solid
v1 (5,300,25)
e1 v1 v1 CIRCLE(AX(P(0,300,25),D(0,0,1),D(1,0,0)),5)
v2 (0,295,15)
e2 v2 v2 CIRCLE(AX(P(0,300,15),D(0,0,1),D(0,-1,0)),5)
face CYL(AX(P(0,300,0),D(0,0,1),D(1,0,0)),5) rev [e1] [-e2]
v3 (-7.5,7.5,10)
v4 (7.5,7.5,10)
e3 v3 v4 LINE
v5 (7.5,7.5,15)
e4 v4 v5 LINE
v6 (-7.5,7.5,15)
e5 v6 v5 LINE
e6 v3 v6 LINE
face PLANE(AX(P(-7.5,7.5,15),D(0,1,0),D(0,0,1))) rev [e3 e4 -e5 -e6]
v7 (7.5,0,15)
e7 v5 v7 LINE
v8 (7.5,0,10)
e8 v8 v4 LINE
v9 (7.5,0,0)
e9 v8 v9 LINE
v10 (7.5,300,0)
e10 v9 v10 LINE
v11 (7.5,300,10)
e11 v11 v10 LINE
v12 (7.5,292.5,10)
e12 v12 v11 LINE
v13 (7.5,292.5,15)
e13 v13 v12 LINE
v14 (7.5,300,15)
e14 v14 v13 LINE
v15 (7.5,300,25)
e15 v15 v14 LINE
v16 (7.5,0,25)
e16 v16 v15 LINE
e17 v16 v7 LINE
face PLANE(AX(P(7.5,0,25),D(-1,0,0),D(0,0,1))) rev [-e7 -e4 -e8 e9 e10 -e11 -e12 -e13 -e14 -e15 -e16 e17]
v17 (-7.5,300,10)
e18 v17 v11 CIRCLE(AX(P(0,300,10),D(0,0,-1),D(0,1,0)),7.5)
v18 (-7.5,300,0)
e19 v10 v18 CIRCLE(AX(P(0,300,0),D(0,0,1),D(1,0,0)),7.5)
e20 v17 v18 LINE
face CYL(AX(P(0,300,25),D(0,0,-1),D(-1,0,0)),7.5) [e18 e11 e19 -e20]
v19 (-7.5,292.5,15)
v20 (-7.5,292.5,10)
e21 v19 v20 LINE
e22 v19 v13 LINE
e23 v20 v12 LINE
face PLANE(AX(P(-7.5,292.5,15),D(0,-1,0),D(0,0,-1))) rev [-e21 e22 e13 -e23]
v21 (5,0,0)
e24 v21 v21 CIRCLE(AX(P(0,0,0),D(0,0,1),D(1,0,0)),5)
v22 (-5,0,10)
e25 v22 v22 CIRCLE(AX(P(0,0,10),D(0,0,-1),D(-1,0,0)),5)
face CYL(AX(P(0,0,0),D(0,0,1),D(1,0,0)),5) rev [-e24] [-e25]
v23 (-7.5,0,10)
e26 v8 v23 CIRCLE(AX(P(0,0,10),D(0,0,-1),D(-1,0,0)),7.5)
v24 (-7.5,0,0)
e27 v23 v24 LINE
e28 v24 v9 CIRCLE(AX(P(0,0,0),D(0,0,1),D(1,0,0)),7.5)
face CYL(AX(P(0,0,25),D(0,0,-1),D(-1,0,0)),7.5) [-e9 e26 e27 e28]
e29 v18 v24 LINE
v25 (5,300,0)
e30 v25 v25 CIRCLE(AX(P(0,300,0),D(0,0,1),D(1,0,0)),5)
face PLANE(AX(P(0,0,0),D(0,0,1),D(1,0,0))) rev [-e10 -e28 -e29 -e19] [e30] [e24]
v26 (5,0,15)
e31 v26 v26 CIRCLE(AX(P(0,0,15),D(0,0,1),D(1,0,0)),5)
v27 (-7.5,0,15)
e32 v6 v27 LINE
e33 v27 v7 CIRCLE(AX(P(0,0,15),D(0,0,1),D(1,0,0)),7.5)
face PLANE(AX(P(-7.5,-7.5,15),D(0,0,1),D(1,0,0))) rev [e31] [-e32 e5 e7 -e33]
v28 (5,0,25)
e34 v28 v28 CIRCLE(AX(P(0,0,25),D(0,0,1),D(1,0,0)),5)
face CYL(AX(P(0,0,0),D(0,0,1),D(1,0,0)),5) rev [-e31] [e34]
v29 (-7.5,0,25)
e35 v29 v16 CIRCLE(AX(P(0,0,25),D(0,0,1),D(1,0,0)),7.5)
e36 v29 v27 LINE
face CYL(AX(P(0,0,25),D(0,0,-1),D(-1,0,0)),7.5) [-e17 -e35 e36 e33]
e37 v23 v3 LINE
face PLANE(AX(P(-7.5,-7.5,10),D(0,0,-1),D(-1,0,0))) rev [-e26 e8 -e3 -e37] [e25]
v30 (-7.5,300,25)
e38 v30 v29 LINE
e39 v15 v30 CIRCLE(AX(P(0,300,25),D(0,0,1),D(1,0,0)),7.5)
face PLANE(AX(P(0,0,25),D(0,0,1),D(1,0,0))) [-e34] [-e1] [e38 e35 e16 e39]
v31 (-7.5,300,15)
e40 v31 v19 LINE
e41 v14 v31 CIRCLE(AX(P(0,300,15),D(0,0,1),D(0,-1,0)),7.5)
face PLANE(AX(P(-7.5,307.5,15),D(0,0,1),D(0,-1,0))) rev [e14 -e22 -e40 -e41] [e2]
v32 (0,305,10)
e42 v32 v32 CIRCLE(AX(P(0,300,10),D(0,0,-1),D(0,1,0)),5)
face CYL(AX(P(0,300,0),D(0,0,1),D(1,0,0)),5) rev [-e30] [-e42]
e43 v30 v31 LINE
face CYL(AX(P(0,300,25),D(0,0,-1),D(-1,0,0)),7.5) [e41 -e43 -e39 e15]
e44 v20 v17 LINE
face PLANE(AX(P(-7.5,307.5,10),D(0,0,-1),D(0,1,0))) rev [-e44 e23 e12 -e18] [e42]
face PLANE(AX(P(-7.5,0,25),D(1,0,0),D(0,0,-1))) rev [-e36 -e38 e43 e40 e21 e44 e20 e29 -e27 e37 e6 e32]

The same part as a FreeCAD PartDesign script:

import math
import FreeCAD as App
import Part
import Sketcher
from FreeCAD import Vector


def add_polygon(sketch, points):
    """Adds a closed chain of lines whose ends are joined by coincident constraints."""
    first, n = sketch.GeometryCount, len(points)
    for a, b in zip(points, points[1:] + points[:1]):
        sketch.addGeometry(Part.LineSegment(App.Vector(*a, 0), App.Vector(*b, 0)), False)
    for i in range(n):
        sketch.addConstraint(Sketcher.Constraint("Coincident", first + i, 2, first + (i + 1) % n, 1))

doc = App.newDocument("Part")
body = doc.addObject("PartDesign::Body", "Body")

# Sketch on XY plane
sketch1 = body.newObject("Sketcher::SketchObject", "Sketch")
sketch1.AttachmentSupport = (doc.getObject("XY_Plane"), [""])
sketch1.MapMode = "FlatFace"
sketch1.addGeometry(Part.LineSegment(Vector(-7.5, 300, 0), Vector(-7.5, 0, 0)), False)
sketch1.addGeometry(Part.ArcOfCircle(Part.Circle(Vector(0, 0, 0), Vector(0, 0, 1), 7.5), math.radians(180), math.radians(360)), False)
sketch1.addGeometry(Part.LineSegment(Vector(7.5, 0, 0), Vector(7.5, 300, 0)), False)
sketch1.addGeometry(Part.ArcOfCircle(Part.Circle(Vector(0, 300, 0), Vector(0, 0, 1), 7.5), math.radians(0), math.radians(180)), False)
sketch1.addConstraint(Sketcher.Constraint("Tangent", 0, 2, 1, 1))
sketch1.addConstraint(Sketcher.Constraint("Tangent", 1, 2, 2, 1))
sketch1.addConstraint(Sketcher.Constraint("Tangent", 2, 2, 3, 1))
sketch1.addConstraint(Sketcher.Constraint("Tangent", 3, 2, 0, 1))
sketch1.addConstraint(Sketcher.Constraint("Vertical", 0))
sketch1.addConstraint(Sketcher.Constraint("Vertical", 2))
sketch1.addConstraint(Sketcher.Constraint("Coincident", 1, 3, -1, 1))
sketch1.addConstraint(Sketcher.Constraint("Radius", 1, 7.5))
sketch1.addConstraint(Sketcher.Constraint("DistanceY", 0, 2, 0, 1, 300.0))
pad1 = body.newObject("PartDesign::Pad", "Pad")
pad1.Profile = sketch1
pad1.Length = 25

# Sketch on YZ plane
sketch2 = body.newObject("Sketcher::SketchObject", "Sketch001")
sketch2.AttachmentSupport = (doc.getObject("YZ_Plane"), [""])
sketch2.MapMode = "FlatFace"
sketch2.AttachmentOffset = App.Placement(Vector(0, 0, 7.5), App.Rotation())
add_polygon(sketch2, [(307.5, 15), (292.5, 15), (292.5, 10), (307.5, 10)])  # lines 0-3
add_polygon(sketch2, [(7.5, 15), (-7.5, 15), (-7.5, 10), (7.5, 10)])  # lines 4-7
sketch2.addConstraint(Sketcher.Constraint("Horizontal", 0))
sketch2.addConstraint(Sketcher.Constraint("Vertical", 1))
sketch2.addConstraint(Sketcher.Constraint("Horizontal", 2))
sketch2.addConstraint(Sketcher.Constraint("Vertical", 3))
sketch2.addConstraint(Sketcher.Constraint("Horizontal", 4))
sketch2.addConstraint(Sketcher.Constraint("Vertical", 5))
sketch2.addConstraint(Sketcher.Constraint("Horizontal", 6))
sketch2.addConstraint(Sketcher.Constraint("Vertical", 7))
sketch2.addConstraint(Sketcher.Constraint("Horizontal", 3, 2, 4, 2))
sketch2.addConstraint(Sketcher.Constraint("Horizontal", 2, 2, 5, 2))
sketch2.addConstraint(Sketcher.Constraint("Equal", 2, 4))
sketch2.addConstraint(Sketcher.Constraint("DistanceX", 0, 2, 0, 1, 15.0))
sketch2.addConstraint(Sketcher.Constraint("DistanceY", 1, 2, 1, 1, 5.0))
sketch2.addConstraint(Sketcher.Constraint("DistanceY", -1, 1, 0, 2, 15.0))
sketch2.addConstraint(Sketcher.Constraint("DistanceX", 4, 2, 0, 2, 300.0))
sketch2.addConstraint(Sketcher.Constraint("DistanceX", -1, 1, 0, 2, 292.5))
pocket1 = body.newObject("PartDesign::Pocket", "Pocket")
pocket1.Profile = sketch2
pocket1.Type = "ThroughAll"

# Sketch on XY plane
sketch3 = body.newObject("Sketcher::SketchObject", "Sketch002")
sketch3.AttachmentSupport = (doc.getObject("XY_Plane"), [""])
sketch3.MapMode = "FlatFace"
sketch3.AttachmentOffset = App.Placement(Vector(0, 0, 25), App.Rotation())
sketch3.addGeometry(Part.Circle(Vector(0, 300, 0), Vector(0, 0, 1), 5), False)
sketch3.addGeometry(Part.Circle(Vector(0, 0, 0), Vector(0, 0, 1), 5), False)
sketch3.addConstraint(Sketcher.Constraint("Coincident", 1, 3, -1, 1))
sketch3.addConstraint(Sketcher.Constraint("Equal", 0, 1))
sketch3.addConstraint(Sketcher.Constraint("PointOnObject", 0, 3, -2))
sketch3.addConstraint(Sketcher.Constraint("Diameter", 0, 10.0))
sketch3.addConstraint(Sketcher.Constraint("DistanceY", -1, 1, 0, 3, 300.0))
pocket2 = body.newObject("PartDesign::Pocket", "Pocket001")
pocket2.Profile = sketch3
pocket2.Type = "ThroughAll"

doc.recompute()
